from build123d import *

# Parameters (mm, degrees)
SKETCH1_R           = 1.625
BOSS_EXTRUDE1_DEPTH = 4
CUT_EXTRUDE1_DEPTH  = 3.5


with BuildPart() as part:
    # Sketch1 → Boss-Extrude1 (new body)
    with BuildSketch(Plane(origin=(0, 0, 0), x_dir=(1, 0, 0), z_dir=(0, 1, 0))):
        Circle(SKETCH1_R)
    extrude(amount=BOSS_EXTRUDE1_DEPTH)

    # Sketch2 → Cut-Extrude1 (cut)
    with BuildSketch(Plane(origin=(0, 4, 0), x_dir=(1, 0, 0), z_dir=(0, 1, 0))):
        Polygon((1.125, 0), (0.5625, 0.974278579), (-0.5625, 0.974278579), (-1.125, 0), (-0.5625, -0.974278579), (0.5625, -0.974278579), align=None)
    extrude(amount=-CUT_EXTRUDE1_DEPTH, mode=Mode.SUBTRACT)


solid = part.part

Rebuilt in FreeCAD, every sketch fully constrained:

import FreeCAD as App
import Part
import Sketcher

V = App.Vector
Q = App.Units.Quantity

doc = App.newDocument("Part")
body = doc.addObject("PartDesign::Body", "Body")

# Sketch on XZ plane
sketch1 = body.newObject("Sketcher::SketchObject", "Sketch")
sketch1.AttachmentSupport = (doc.getObject("XZ_Plane"), [""])
sketch1.MapMode = "FlatFace"
sketch1.addGeometry(Part.Circle(V(0, 0, 0), V(0, 0, 1), 1.6), False)
sketch1.addConstraint(Sketcher.Constraint("Coincident", 0, 3, -1, 1))
sketch1.addConstraint(Sketcher.Constraint("Diameter", 0, Q("3.25 mm")))
pad1 = body.newObject("PartDesign::Pad", "Pad")
pad1.Profile = sketch1
pad1.Length = 4
pad1.Reversed = True

# Sketch on XZ plane
sketch2 = body.newObject("Sketcher::SketchObject", "Sketch001")
sketch2.AttachmentSupport = (doc.getObject("XZ_Plane"), [""])
sketch2.MapMode = "FlatFace"
sketch2.AttachmentOffset = App.Placement(V(0, 0, -4), App.Rotation())
sketch2.addGeometry(Part.LineSegment(V(1.1, 0, 0), V(0.6, -1, 0)), False)
sketch2.addGeometry(Part.LineSegment(V(0.6, -1, 0), V(-0.6, -1, 0)), False)
sketch2.addGeometry(Part.LineSegment(V(-0.6, -1, 0), V(-1.1, 0, 0)), False)
sketch2.addGeometry(Part.LineSegment(V(-1.1, 0, 0), V(-0.6, 1, 0)), False)
sketch2.addGeometry(Part.LineSegment(V(-0.6, 1, 0), V(0.6, 1, 0)), False)
sketch2.addGeometry(Part.LineSegment(V(0.6, 1, 0), V(1.1, 0, 0)), False)
sketch2.addConstraint(Sketcher.Constraint("Coincident", 0, 2, 1, 1))
sketch2.addConstraint(Sketcher.Constraint("Coincident", 1, 2, 2, 1))
sketch2.addConstraint(Sketcher.Constraint("Coincident", 2, 2, 3, 1))
sketch2.addConstraint(Sketcher.Constraint("Coincident", 3, 2, 4, 1))
sketch2.addConstraint(Sketcher.Constraint("Coincident", 4, 2, 5, 1))
sketch2.addConstraint(Sketcher.Constraint("Coincident", 5, 2, 0, 1))
sketch2.addConstraint(Sketcher.Constraint("Horizontal", 1))
sketch2.addConstraint(Sketcher.Constraint("Horizontal", 4))
sketch2.addConstraint(Sketcher.Constraint("Symmetric", 0, 2, 3, 2, -1, 1))
sketch2.addConstraint(Sketcher.Constraint("Symmetric", 2, 2, 5, 2, -1, 1))
sketch2.addConstraint(Sketcher.Constraint("PointOnObject", 2, 2, -1))
sketch2.addConstraint(Sketcher.Constraint("Parallel", 2, 5))
sketch2.addConstraint(Sketcher.Constraint("Vertical", 1, 2, 3, 2))
sketch2.addConstraint(Sketcher.Constraint("Angle", 0, Q("-120 deg")))
sketch2.addConstraint(Sketcher.Constraint("DistanceX", 1, 2, 1, 1, Q("1.125 mm")))
sketch2.addConstraint(Sketcher.Constraint("DistanceX", 2, 2, 5, 2, Q("2.25 mm")))
pocket1 = body.newObject("PartDesign::Pocket", "Pocket")
pocket1.Profile = sketch2
pocket1.Length = 3.5
pocket1.Reversed = True

doc.recompute()
